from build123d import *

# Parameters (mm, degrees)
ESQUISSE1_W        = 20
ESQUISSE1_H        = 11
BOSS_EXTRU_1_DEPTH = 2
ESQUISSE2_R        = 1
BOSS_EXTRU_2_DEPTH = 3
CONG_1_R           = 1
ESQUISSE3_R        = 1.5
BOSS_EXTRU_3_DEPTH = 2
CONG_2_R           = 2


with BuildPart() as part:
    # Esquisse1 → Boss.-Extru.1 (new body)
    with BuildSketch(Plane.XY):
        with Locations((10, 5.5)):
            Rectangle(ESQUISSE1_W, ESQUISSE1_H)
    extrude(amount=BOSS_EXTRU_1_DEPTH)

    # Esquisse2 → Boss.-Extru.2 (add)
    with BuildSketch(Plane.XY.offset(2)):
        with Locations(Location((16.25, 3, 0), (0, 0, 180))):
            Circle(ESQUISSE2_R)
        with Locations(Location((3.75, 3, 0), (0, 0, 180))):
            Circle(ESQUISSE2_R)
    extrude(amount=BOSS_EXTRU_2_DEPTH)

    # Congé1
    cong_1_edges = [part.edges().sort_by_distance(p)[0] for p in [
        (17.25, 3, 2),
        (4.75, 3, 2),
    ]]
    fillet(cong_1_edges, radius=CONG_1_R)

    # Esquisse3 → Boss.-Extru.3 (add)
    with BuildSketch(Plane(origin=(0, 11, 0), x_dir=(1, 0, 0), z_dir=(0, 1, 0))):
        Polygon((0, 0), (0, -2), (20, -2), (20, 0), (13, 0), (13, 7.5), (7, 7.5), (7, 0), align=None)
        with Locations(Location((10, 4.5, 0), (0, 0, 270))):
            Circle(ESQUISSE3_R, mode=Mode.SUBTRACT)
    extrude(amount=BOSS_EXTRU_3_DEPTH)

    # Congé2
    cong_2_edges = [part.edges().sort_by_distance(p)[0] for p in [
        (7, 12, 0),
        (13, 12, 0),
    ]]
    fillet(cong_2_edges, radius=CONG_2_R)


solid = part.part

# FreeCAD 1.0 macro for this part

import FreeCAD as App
import Part
import Sketcher
from FreeCAD import Vector
Q = App.Units.Quantity


def edges_at(feature, points):
    """Names of the edges that pass closest to the given points."""
    edges = feature.Shape.Edges
    near = lambda p: min(range(len(edges)), key=lambda i: edges[i].distToShape(Part.Vertex(*p))[0])
    return sorted({f"Edge{near(p) + 1}" for p in points})


def add_polygon(sketch, points):
    """Adds a closed chain of lines whose ends are joined by coincident constraints."""
    first, n = sketch.GeometryCount, len(points)
    for a, b in zip(points, points[1:] + points[:1]):
        sketch.addGeometry(Part.LineSegment(App.Vector(*a, 0), App.Vector(*b, 0)), False)
    for i in range(n):
        sketch.addConstraint(Sketcher.Constraint("Coincident", first + i, 2, first + (i + 1) % n, 1))

doc = App.newDocument("Part")
body = doc.addObject("PartDesign::Body", "Body")

sketch1 = body.newObject("Sketcher::SketchObject", "Sketch")
sketch1.AttachmentSupport = (doc.getObject("XY_Plane"), [""])
sketch1.MapMode = "FlatFace"
add_polygon(sketch1, [(0, 11), (0, 0), (20, 0), (20, 11)])
sketch1.addConstraint([
    Sketcher.Constraint("Vertical", 0),
    Sketcher.Constraint("Horizontal", 1),
    Sketcher.Constraint("Vertical", 2),
    Sketcher.Constraint("Horizontal", 3),
    Sketcher.Constraint("Coincident", 0, 2, -1, 1),
    Sketcher.Constraint("DistanceX", 1, 1, 1, 2, Q("20 mm")),
    Sketcher.Constraint("DistanceY", 0, 2, 0, 1, Q("11 mm")),
])
pad1 = body.newObject("PartDesign::Pad", "Pad")
pad1.Profile = sketch1
pad1.Length = 2

sketch2 = body.newObject("Sketcher::SketchObject", "Sketch001")
sketch2.AttachmentSupport = (doc.getObject("XY_Plane"), [""])
sketch2.MapMode = "FlatFace"
sketch2.AttachmentOffset = App.Placement(Vector(0, 0, 2), App.Rotation())
sketch2.addGeometry([
    Part.Circle(Vector(16.2, 3, 0), Vector(0, 0, 1), 1),
    Part.Circle(Vector(3.8, 3, 0), Vector(0, 0, 1), 1),
], False)
sketch2.addConstraint([
    Sketcher.Constraint("Equal", 0, 1),
    Sketcher.Constraint("Horizontal", 0, 3, 1, 3),
    Sketcher.Constraint("Diameter", 0, Q("2 mm")),
    Sketcher.Constraint("DistanceY", -1, 1, 0, 3, Q("3 mm")),
    Sketcher.Constraint("DistanceX", 1, 3, 0, 3, Q("12.5 mm")),
    Sketcher.Constraint("DistanceX", -1, 1, 0, 3, Q("16.25 mm")),
])
pad2 = body.newObject("PartDesign::Pad", "Pad001")
pad2.Profile = sketch2
pad2.Length = 3
doc.recompute()

fillet = body.newObject("PartDesign::Fillet", "Fillet")
fillet.Base = (pad2, edges_at(pad2, [(17.25, 3, 2), (4.75, 3, 2)]))
fillet.Radius = 1

sketch3 = body.newObject("Sketcher::SketchObject", "Sketch002")
sketch3.AttachmentSupport = (doc.getObject("XZ_Plane"), [""])
sketch3.MapMode = "FlatFace"
sketch3.AttachmentOffset = App.Placement(Vector(0, 0, -11), App.Rotation())
add_polygon(sketch3, [(0, 0), (0, 2), (20, 2), (20, 0), (13, 0), (13, -7.5), (7, -7.5), (7, 0)])
sketch3.addGeometry(Part.Circle(Vector(10, -4.5, 0), Vector(0, 0, 1), 1.5), False)
sketch3.addConstraint([
    Sketcher.Constraint("Vertical", 0),
    Sketcher.Constraint("Horizontal", 1),
    Sketcher.Constraint("Vertical", 2),
    Sketcher.Constraint("Horizontal", 3),
    Sketcher.Constraint("Vertical", 4),
    Sketcher.Constraint("Horizontal", 5),
    Sketcher.Constraint("Vertical", 6),
    Sketcher.Constraint("Horizontal", 7),
    Sketcher.Constraint("Coincident", 7, 2, -1, 1),
    Sketcher.Constraint("PointOnObject", 2, 2, -1),
    Sketcher.Constraint("Equal", 3, 7),
    Sketcher.Constraint("Diameter", 8, Q("3 mm")),
    Sketcher.Constraint("DistanceX", 1, 1, 1, 2, Q("20 mm")),
    Sketcher.Constraint("DistanceX", 3, 2, 3, 1, Q("7 mm")),
    Sketcher.Constraint("DistanceY", 0, 1, 0, 2, Q("2 mm")),
    Sketcher.Constraint("DistanceY", 4, 2, 4, 1, Q("7.5 mm")),
    Sketcher.Constraint("DistanceX", -1, 1, 8, 3, Q("10 mm")),
    Sketcher.Constraint("DistanceY", 4, 2, 8, 3, Q("3 mm")),
])
pad3 = body.newObject("PartDesign::Pad", "Pad002")
pad3.Profile = sketch3
pad3.Length = 2
pad3.Reversed = True
doc.recompute()

fillet2 = body.newObject("PartDesign::Fillet", "Fillet001")
fillet2.Base = (pad3, edges_at(pad3, [(7, 12, 0), (13, 12, 0)]))
fillet2.Radius = 2

doc.recompute()
